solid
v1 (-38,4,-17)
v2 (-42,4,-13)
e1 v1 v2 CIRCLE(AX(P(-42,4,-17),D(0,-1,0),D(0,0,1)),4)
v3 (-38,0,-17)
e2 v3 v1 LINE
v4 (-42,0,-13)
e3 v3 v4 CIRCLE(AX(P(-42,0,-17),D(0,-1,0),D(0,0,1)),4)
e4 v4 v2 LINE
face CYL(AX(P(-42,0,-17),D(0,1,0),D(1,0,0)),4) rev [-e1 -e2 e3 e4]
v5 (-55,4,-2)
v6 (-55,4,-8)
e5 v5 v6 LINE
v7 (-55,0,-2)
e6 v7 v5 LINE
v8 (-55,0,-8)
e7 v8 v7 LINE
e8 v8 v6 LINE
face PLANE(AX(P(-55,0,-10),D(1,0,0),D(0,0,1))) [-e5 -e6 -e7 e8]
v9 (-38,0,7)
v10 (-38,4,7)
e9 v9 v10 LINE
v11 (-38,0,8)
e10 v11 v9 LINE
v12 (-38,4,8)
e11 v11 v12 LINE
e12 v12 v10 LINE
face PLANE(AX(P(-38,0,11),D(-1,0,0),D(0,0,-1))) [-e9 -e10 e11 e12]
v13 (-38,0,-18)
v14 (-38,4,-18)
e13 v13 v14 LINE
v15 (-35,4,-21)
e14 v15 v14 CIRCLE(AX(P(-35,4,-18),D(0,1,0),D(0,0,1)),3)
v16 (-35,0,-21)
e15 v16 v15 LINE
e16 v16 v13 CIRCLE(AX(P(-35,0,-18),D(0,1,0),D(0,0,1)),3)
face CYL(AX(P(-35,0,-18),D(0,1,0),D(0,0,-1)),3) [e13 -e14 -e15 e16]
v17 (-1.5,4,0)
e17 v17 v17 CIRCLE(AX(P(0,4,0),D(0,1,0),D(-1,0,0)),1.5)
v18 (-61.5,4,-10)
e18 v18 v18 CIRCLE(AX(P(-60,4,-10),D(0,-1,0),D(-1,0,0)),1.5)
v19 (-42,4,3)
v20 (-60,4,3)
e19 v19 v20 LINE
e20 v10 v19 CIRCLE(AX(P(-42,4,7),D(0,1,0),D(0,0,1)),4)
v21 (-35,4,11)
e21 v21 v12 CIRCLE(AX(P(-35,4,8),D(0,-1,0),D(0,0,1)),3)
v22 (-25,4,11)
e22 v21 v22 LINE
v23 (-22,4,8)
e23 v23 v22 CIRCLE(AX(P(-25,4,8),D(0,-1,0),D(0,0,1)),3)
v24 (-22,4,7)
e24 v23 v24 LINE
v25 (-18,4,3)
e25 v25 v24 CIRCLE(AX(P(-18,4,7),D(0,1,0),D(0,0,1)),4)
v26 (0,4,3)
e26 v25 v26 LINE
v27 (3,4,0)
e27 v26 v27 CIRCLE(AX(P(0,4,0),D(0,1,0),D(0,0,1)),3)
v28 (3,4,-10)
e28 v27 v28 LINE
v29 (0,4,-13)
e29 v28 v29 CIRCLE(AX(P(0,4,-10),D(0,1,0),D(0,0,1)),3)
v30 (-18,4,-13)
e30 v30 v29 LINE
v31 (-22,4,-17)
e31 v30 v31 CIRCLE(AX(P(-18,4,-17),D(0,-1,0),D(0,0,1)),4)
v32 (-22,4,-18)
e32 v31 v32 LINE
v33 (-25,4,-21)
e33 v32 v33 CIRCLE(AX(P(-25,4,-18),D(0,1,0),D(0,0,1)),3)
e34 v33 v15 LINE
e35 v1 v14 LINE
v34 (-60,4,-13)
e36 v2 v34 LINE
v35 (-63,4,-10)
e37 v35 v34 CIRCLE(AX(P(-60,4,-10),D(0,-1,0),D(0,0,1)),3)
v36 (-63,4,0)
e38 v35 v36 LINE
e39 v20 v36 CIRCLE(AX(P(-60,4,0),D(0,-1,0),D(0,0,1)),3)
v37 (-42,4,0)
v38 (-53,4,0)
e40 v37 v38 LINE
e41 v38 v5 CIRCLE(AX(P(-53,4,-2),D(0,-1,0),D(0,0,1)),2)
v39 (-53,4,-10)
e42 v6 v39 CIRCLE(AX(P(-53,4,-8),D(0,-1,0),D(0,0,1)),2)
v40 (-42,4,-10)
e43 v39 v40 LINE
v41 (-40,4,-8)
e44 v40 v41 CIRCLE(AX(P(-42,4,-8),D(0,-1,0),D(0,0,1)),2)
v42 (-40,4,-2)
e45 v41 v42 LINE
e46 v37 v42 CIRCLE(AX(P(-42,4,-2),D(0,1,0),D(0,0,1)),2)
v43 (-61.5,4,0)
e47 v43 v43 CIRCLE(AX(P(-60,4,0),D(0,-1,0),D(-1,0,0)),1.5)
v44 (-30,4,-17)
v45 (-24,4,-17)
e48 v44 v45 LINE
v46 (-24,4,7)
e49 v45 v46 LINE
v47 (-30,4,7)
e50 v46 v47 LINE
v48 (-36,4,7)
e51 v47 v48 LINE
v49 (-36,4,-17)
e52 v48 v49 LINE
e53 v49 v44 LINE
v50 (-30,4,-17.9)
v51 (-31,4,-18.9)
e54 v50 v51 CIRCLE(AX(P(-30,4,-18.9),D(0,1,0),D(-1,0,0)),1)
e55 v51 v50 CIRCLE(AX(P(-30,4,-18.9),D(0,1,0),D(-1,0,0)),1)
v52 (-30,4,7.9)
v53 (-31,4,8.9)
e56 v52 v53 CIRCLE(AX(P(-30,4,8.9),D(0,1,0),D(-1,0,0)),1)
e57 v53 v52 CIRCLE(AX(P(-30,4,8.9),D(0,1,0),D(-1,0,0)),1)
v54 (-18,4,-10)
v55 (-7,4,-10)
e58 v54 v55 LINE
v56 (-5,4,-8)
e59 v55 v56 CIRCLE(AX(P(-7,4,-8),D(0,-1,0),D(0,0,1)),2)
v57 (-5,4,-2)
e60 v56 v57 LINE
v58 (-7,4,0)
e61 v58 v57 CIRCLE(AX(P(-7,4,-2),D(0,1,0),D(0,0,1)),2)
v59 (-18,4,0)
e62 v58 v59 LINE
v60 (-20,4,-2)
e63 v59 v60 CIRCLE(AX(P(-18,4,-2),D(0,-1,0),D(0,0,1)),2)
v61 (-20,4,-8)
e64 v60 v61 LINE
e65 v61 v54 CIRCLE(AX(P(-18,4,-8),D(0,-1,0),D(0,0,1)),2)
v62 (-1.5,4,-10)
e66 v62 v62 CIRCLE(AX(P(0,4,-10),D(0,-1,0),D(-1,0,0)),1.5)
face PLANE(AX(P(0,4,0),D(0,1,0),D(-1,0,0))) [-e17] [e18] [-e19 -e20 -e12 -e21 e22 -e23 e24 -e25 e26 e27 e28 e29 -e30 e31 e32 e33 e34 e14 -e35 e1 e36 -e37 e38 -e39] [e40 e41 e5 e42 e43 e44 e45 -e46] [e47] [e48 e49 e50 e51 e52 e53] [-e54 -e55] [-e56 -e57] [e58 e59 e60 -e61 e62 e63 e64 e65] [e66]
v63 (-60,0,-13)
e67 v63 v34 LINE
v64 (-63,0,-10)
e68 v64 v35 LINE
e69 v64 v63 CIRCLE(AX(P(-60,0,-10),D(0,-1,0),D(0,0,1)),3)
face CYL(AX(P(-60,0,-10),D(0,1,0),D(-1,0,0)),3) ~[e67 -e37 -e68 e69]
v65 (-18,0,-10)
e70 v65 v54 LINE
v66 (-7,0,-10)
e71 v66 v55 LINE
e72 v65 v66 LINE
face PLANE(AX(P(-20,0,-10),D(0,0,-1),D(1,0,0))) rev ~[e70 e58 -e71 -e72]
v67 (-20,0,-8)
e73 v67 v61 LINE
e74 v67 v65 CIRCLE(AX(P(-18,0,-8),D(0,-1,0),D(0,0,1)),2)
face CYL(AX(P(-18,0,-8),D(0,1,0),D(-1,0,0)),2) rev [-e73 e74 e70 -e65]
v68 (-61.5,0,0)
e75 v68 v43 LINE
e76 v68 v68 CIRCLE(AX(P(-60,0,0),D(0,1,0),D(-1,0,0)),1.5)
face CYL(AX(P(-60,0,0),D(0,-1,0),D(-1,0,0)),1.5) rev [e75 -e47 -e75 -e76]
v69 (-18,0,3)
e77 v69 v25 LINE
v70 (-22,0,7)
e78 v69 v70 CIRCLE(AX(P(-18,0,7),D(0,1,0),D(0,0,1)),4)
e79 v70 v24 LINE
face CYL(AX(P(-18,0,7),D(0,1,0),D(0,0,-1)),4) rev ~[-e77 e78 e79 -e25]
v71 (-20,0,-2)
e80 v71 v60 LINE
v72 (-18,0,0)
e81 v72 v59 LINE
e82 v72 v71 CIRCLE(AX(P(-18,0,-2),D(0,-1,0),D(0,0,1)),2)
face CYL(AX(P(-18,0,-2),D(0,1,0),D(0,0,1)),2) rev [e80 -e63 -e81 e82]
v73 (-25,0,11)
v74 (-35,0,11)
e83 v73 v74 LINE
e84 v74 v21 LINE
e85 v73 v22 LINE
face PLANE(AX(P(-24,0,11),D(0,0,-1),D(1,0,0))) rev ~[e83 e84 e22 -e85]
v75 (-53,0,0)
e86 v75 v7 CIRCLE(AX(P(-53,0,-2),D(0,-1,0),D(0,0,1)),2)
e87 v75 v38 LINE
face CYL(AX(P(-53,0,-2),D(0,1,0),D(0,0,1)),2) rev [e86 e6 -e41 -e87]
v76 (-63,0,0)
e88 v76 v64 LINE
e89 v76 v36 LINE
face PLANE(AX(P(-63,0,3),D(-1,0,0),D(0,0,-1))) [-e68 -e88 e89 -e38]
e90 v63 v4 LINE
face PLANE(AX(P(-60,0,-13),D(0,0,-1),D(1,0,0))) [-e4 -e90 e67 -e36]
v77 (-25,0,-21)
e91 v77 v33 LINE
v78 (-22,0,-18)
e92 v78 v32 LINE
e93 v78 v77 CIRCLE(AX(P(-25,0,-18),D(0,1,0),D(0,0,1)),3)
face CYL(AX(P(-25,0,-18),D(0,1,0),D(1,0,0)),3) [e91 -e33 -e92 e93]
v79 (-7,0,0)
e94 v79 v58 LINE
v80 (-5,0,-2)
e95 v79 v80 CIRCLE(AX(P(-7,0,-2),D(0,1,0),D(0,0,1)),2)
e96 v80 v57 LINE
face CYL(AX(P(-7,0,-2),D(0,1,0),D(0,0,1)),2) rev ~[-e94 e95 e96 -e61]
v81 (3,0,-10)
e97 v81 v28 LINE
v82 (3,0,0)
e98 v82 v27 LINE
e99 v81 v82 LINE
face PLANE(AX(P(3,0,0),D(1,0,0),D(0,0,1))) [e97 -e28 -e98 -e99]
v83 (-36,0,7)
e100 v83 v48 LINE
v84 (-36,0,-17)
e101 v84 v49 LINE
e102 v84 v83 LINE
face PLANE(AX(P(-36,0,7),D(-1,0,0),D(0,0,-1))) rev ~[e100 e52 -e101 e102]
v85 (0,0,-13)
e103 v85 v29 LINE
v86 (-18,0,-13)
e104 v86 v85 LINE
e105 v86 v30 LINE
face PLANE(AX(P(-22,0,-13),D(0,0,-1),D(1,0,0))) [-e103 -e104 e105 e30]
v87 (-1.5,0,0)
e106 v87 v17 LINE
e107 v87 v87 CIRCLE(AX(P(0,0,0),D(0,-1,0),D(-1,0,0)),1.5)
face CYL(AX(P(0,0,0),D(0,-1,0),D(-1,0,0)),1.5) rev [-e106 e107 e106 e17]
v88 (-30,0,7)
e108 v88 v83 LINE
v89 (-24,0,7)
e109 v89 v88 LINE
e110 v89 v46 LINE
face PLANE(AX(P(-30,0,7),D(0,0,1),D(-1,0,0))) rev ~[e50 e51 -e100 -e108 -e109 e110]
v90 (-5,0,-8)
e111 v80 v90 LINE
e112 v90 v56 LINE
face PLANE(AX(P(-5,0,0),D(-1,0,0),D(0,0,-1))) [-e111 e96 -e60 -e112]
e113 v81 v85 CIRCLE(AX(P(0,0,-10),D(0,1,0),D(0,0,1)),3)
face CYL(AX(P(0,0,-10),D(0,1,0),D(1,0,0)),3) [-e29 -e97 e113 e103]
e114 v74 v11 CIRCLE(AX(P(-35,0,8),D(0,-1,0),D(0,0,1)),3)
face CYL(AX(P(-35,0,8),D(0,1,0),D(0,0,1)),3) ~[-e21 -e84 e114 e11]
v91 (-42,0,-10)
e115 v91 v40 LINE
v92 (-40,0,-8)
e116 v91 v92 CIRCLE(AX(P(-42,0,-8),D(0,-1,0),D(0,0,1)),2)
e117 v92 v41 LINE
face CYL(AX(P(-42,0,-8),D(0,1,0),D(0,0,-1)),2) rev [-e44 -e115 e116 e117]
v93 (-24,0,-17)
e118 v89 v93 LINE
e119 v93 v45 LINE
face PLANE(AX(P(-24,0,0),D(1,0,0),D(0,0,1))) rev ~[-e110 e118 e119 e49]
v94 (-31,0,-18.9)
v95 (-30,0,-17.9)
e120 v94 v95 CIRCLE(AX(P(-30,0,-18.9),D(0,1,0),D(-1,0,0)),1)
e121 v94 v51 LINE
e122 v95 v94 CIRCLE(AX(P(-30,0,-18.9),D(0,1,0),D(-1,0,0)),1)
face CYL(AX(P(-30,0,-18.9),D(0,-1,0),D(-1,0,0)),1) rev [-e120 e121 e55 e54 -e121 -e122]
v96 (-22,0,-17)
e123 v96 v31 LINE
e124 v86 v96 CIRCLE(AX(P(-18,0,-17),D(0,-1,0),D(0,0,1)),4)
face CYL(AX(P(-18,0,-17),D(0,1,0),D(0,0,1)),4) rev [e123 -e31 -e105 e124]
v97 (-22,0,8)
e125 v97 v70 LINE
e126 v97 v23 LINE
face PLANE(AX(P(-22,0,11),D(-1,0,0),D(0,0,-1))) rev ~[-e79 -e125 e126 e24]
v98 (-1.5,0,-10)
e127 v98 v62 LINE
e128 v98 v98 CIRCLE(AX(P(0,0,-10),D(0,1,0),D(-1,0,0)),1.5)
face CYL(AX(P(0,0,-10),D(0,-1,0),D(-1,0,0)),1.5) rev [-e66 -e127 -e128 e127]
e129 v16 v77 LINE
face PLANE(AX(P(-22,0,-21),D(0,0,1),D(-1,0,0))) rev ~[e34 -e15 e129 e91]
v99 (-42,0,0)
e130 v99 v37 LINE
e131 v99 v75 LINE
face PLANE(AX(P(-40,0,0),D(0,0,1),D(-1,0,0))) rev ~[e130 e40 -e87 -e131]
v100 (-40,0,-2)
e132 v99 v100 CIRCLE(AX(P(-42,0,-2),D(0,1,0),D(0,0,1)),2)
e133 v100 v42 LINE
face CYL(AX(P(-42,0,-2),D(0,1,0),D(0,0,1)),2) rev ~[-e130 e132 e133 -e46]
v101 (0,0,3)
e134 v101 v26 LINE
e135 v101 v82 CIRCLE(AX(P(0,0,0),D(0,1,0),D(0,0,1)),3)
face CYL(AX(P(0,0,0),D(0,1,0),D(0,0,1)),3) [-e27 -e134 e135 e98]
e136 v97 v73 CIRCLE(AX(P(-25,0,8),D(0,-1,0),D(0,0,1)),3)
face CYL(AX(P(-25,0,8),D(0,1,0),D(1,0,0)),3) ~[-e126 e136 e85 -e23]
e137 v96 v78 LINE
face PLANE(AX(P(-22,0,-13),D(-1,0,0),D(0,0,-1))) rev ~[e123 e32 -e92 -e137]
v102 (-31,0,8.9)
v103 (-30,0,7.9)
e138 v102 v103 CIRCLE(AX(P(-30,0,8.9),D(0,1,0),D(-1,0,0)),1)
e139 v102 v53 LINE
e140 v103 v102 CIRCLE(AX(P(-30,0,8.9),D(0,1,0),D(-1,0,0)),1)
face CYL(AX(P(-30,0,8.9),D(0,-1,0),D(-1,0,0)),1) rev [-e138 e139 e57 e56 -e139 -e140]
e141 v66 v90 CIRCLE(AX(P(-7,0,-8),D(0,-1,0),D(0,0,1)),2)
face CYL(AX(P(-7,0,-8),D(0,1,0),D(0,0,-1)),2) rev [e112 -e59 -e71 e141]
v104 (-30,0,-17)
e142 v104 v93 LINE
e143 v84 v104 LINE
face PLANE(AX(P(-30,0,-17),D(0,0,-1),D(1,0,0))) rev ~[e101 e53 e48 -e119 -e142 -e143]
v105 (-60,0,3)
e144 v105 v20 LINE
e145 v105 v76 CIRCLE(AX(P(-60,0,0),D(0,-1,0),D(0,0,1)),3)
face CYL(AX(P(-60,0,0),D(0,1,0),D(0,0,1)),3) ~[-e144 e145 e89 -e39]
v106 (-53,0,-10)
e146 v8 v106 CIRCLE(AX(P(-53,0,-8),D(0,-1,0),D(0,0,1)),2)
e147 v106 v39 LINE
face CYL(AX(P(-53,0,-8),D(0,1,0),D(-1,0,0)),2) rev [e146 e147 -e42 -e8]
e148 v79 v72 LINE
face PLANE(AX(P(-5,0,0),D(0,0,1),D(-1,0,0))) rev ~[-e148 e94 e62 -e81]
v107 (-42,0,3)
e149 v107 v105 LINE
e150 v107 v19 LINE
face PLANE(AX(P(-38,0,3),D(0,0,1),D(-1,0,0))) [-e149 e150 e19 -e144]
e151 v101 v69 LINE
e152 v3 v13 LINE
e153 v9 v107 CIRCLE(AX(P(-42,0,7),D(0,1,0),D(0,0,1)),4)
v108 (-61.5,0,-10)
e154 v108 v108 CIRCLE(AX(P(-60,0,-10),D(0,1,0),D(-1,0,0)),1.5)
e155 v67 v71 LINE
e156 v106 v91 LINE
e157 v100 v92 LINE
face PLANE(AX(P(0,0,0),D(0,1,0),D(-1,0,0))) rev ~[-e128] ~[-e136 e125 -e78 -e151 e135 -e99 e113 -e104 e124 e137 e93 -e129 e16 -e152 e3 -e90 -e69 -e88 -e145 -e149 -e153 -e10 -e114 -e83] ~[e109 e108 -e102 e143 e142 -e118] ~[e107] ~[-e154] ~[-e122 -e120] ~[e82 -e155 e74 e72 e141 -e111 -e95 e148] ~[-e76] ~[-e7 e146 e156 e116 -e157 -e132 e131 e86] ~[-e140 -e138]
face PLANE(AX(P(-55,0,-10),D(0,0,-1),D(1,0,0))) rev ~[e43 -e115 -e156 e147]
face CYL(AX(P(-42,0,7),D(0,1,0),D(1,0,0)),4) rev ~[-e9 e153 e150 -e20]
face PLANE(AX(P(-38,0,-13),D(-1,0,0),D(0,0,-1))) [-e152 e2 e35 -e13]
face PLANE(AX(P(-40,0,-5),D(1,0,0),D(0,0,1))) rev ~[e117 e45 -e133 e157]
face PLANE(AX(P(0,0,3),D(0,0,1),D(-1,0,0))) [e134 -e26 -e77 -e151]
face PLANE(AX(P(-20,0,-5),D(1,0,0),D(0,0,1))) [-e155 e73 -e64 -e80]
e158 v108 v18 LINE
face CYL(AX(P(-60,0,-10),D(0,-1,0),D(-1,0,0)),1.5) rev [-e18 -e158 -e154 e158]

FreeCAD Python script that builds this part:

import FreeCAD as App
import Part
import Sketcher
from FreeCAD import Vector


def edges_at(feature, points):
    """Names of the edges that pass closest to the given points."""
    edges = feature.Shape.Edges
    near = lambda p: min(range(len(edges)), key=lambda i: edges[i].distToShape(Part.Vertex(*p))[0])
    return sorted({f"Edge{near(p) + 1}" for p in points})


def add_polygon(sketch, points):
    """Adds a closed chain of lines whose ends are joined by coincident constraints."""
    first, n = sketch.GeometryCount, len(points)
    for a, b in zip(points, points[1:] + points[:1]):
        sketch.addGeometry(Part.LineSegment(App.Vector(*a, 0), App.Vector(*b, 0)), False)
    for i in range(n):
        sketch.addConstraint(Sketcher.Constraint("Coincident", first + i, 2, first + (i + 1) % n, 1))

doc = App.newDocument("Part")
body = doc.addObject("PartDesign::Body", "Body")

# Sketch on XZ plane
sketch1 = doc.addObject("Sketcher::SketchObject", "Sketch")
body.addObject(sketch1)
sketch1.AttachmentSupport = (doc.XZ_Plane, [""])
sketch1.MapMode = "FlatFace"
add_polygon(sketch1, [(-22, 3), (3, 3), (3, -13), (-22, -13), (-22, -21), (-38, -21), (-38, -13), (-63, -13), (-63, 3), (-38, 3), (-38, 11), (-22, 11)])  # lines 0-11
sketch1.addGeometry(Part.Circle(Vector(0, 0, 0), Vector(0, 0, 1), 1.5), False)  # 12
add_polygon(sketch1, [(-5, 0), (-20, 0), (-20, -10), (-5, -10)])  # lines 13-16
add_polygon(sketch1, [(-24, 7), (-30, 7), (-36, 7), (-36, -17), (-30, -17), (-24, -17)])  # lines 17-22
sketch1.addGeometry(Part.Circle(Vector(0, -10, 0), Vector(0, 0, 1), 1.5), False)  # 23
sketch1.addGeometry(Part.Circle(Vector(-30, 8.9, 0), Vector(0, 0, 1), 1), False)  # 24
sketch1.addGeometry(Part.Circle(Vector(-30, -18.9, 0), Vector(0, 0, 1), 1), False)  # 25
sketch1.addGeometry(Part.Circle(Vector(-60, -10, 0), Vector(0, 0, 1), 1.5), False)  # 26
sketch1.addGeometry(Part.Circle(Vector(-60, 0, 0), Vector(0, 0, 1), 1.5), False)  # 27
add_polygon(sketch1, [(-40, 0), (-55, 0), (-55, -10), (-40, -10)])  # lines 28-31
sketch1.addConstraint(Sketcher.Constraint("Horizontal", 0))
sketch1.addConstraint(Sketcher.Constraint("Vertical", 1))
sketch1.addConstraint(Sketcher.Constraint("Horizontal", 2))
sketch1.addConstraint(Sketcher.Constraint("Vertical", 3))
sketch1.addConstraint(Sketcher.Constraint("Horizontal", 4))
sketch1.addConstraint(Sketcher.Constraint("Vertical", 5))
sketch1.addConstraint(Sketcher.Constraint("Horizontal", 6))
sketch1.addConstraint(Sketcher.Constraint("Vertical", 7))
sketch1.addConstraint(Sketcher.Constraint("Horizontal", 8))
sketch1.addConstraint(Sketcher.Constraint("Vertical", 9))
sketch1.addConstraint(Sketcher.Constraint("Horizontal", 10))
sketch1.addConstraint(Sketcher.Constraint("Vertical", 11))
sketch1.addConstraint(Sketcher.Constraint("Horizontal", 13))
sketch1.addConstraint(Sketcher.Constraint("Vertical", 14))
sketch1.addConstraint(Sketcher.Constraint("Horizontal", 15))
sketch1.addConstraint(Sketcher.Constraint("Vertical", 16))
sketch1.addConstraint(Sketcher.Constraint("Horizontal", 17))
sketch1.addConstraint(Sketcher.Constraint("Horizontal", 18))
sketch1.addConstraint(Sketcher.Constraint("Vertical", 19))
sketch1.addConstraint(Sketcher.Constraint("Horizontal", 20))
sketch1.addConstraint(Sketcher.Constraint("Horizontal", 21))
sketch1.addConstraint(Sketcher.Constraint("Vertical", 22))
sketch1.addConstraint(Sketcher.Constraint("Horizontal", 28))
sketch1.addConstraint(Sketcher.Constraint("Vertical", 29))
sketch1.addConstraint(Sketcher.Constraint("Horizontal", 30))
sketch1.addConstraint(Sketcher.Constraint("Vertical", 31))
sketch1.addConstraint(Sketcher.Constraint("Coincident", 12, 3, -1, 1))
sketch1.addConstraint(Sketcher.Constraint("Equal", 12, 23))
sketch1.addConstraint(Sketcher.Constraint("Equal", 24, 25))
sketch1.addConstraint(Sketcher.Constraint("Equal", 23, 26))
sketch1.addConstraint(Sketcher.Constraint("Equal", 26, 27))
sketch1.addConstraint(Sketcher.Constraint("PointOnObject", 23, 3, -2))
sketch1.addConstraint(Sketcher.Constraint("PointOnObject", 27, 3, -1))
sketch1.addConstraint(Sketcher.Constraint("PointOnObject", 13, 2, -1))
sketch1.addConstraint(Sketcher.Constraint("PointOnObject", 28, 2, -1))
sketch1.addConstraint(Sketcher.Constraint("Horizontal", 23, 3, 26, 3))
sketch1.addConstraint(Sketcher.Constraint("Horizontal", 2, 2, 5, 2))
sketch1.addConstraint(Sketcher.Constraint("Horizontal", 0, 2, 7, 2))
sketch1.addConstraint(Sketcher.Constraint("Horizontal", 26, 3, 14, 2))
sketch1.addConstraint(Sketcher.Constraint("Horizontal", 15, 2, 29, 2))
sketch1.addConstraint(Sketcher.Constraint("Vertical", 24, 3, 25, 3))
sketch1.addConstraint(Sketcher.Constraint("Vertical", 26, 3, 27, 3))
sketch1.addConstraint(Sketcher.Constraint("Vertical", 5, 2, 8, 2))
sketch1.addConstraint(Sketcher.Constraint("Vertical", 3, 2, 10, 2))
sketch1.addConstraint(Sketcher.Constraint("Vertical", 25, 3, 17, 2))
sketch1.addConstraint(Sketcher.Constraint("Vertical", 17, 2, 20, 2))
sketch1.addConstraint(Sketcher.Constraint("Equal", 2, 6))
sketch1.addConstraint(Sketcher.Constraint("Equal", 17, 18))
sketch1.addConstraint(Sketcher.Constraint("Equal", 15, 28))
sketch1.addConstraint(Sketcher.Constraint("Equal", 10, 1))
sketch1.addConstraint(Sketcher.Constraint("Equal", 5, 9))
sketch1.addConstraint(Sketcher.Constraint("Diameter", 12, 3.0))
sketch1.addConstraint(Sketcher.Constraint("Diameter", 24, 2.0))
sketch1.addConstraint(Sketcher.Constraint("DistanceX", 13, 2, 13, 1, 15.0))
sketch1.addConstraint(Sketcher.Constraint("DistanceY", 14, 2, 14, 1, 10.0))
sketch1.addConstraint(Sketcher.Constraint("DistanceY", 19, 2, 19, 1, 24.0))
sketch1.addConstraint(Sketcher.Constraint("DistanceX", 26, 3, -1, 1, 60.0))
sketch1.addConstraint(Sketcher.Constraint("DistanceX", -1, 1, 0, 2, 3.0))
sketch1.addConstraint(Sketcher.Constraint("DistanceY", -1, 1, 0, 2, 3.0))
sketch1.addConstraint(Sketcher.Constraint("DistanceX", 15, 2, -1, 1, 5.0))
sketch1.addConstraint(Sketcher.Constraint("DistanceX", 21, 2, -1, 1, 24.0))
sketch1.addConstraint(Sketcher.Constraint("DistanceY", 1, 2, 23, 3, 3.0))
sketch1.addConstraint(Sketcher.Constraint("DistanceX", 6, 2, 26, 3, 3.0))
sketch1.addConstraint(Sketcher.Constraint("DistanceY", 5, 2, 9, 2, 24.0))
sketch1.addConstraint(Sketcher.Constraint("DistanceX", 24, 3, 13, 2, 10.0))
sketch1.addConstraint(Sketcher.Constraint("DistanceY", 8, 2, 17, 2, 4.0))
sketch1.addConstraint(Sketcher.Constraint("DistanceX", 27, 3, 28, 2, 5.0))
sketch1.addConstraint(Sketcher.Constraint("DistanceY", -1, 1, 24, 3, 8.9))
sketch1.addConstraint(Sketcher.Constraint("DistanceY", 25, 3, -1, 1, 18.9))
pad1 = doc.addObject("PartDesign::Pad", "Pad")
body.addObject(pad1)
pad1.Profile = sketch1
pad1.Length = 4
pad1.Reversed = True
doc.recompute()

fillet = doc.addObject("PartDesign::Fillet", "Fillet")
body.addObject(fillet)
fillet.Base = (pad1, edges_at(pad1, [
    (-22, 2, 3),
    (-22, 2, -13),
    (-38, 2, -13),
    (-38, 2, 3),
]))
fillet.Radius = 4
doc.recompute()

fillet2 = doc.addObject("PartDesign::Fillet", "Fillet001")
body.addObject(fillet2)
fillet2.Base = (fillet, edges_at(fillet, [
    (-38, 2, 11),
    (-22, 2, 11),
    (-22, 2, -21),
    (-38, 2, -21),
]))
fillet2.Radius = 3
doc.recompute()

fillet3 = doc.addObject("PartDesign::Fillet", "Fillet002")
body.addObject(fillet3)
fillet3.Base = (fillet2, edges_at(fillet2, [
    (-63, 2, 3),
    (-63, 2, -13),
    (3, 2, -13),
    (3, 2, 3),
]))
fillet3.Radius = 3
doc.recompute()

fillet4 = doc.addObject("PartDesign::Fillet", "Fillet003")
body.addObject(fillet4)
fillet4.Base = (fillet3, edges_at(fillet3, [
    (-55, 2, -10),
    (-40, 2, -10),
    (-40, 2, 0),
    (-55, 2, 0),
    (-20, 2, -10),
    (-20, 2, 0),
    (-5, 2, 0),
    (-5, 2, -10),
]))
fillet4.Radius = 2

doc.recompute()
